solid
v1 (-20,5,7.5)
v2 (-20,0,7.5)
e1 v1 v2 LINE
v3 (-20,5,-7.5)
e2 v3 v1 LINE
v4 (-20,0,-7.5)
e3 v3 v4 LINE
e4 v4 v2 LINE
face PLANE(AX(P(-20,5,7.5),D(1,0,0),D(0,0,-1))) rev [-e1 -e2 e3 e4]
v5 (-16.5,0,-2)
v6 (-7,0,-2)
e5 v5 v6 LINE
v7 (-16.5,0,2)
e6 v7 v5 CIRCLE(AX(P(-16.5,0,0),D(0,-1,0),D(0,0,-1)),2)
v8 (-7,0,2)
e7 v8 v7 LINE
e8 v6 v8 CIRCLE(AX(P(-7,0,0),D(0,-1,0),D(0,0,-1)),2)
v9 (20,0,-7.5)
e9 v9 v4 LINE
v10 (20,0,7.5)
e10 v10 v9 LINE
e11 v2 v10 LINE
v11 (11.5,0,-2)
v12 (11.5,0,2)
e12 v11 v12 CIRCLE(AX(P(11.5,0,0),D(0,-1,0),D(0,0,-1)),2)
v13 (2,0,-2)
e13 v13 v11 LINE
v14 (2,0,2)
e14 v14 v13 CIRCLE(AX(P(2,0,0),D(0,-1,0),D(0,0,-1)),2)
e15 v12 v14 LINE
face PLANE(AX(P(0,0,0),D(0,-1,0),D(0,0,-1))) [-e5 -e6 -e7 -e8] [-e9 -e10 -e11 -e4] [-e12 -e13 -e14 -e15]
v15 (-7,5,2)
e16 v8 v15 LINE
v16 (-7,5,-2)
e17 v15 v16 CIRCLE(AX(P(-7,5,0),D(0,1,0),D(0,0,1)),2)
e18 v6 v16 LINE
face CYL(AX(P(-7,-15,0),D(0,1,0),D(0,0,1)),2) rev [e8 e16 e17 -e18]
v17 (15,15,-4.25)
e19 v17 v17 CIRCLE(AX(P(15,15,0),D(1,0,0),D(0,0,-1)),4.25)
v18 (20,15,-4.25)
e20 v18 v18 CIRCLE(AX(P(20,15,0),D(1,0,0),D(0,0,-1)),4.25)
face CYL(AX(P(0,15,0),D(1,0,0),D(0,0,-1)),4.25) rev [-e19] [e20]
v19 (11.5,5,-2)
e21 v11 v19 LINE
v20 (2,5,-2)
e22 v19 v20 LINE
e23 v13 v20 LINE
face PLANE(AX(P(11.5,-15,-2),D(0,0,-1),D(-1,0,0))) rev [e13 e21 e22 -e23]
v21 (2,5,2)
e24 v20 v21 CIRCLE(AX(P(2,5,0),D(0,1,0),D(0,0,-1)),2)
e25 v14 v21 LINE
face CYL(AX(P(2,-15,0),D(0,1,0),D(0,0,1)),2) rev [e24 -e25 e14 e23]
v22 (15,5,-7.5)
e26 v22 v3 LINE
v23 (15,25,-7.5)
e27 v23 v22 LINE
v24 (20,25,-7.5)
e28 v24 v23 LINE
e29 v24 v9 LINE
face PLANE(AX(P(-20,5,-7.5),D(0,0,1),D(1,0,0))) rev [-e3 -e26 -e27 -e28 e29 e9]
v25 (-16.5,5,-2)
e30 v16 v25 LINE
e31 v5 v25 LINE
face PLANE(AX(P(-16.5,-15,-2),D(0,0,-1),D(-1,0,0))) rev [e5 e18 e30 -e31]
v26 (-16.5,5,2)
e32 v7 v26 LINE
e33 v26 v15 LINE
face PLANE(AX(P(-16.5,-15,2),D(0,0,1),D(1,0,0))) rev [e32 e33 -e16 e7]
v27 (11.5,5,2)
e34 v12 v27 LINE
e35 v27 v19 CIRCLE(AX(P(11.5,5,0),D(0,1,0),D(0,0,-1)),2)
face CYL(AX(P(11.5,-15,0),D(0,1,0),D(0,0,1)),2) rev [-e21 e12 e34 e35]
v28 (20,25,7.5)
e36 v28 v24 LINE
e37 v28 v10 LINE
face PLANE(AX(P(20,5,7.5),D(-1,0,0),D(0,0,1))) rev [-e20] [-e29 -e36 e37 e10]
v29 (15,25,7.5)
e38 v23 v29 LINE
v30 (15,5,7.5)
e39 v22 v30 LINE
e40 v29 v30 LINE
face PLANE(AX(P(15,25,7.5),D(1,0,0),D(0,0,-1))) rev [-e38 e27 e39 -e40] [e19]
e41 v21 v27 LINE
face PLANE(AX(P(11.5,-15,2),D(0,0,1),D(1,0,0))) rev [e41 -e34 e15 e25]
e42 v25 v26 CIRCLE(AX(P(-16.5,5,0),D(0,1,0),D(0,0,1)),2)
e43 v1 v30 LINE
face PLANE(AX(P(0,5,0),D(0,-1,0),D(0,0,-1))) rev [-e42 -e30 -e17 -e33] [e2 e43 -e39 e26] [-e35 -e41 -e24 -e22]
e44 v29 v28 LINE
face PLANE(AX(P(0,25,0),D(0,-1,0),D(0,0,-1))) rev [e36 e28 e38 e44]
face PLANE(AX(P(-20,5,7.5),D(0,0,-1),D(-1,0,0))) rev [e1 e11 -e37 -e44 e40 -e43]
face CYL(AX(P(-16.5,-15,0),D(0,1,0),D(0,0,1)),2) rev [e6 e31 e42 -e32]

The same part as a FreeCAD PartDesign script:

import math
import FreeCAD as App
import Part
import Sketcher

doc = App.newDocument("Part")
body = doc.addObject("PartDesign::Body", "Body")

# Sketch on XZ plane
sketch1 = doc.addObject("Sketcher::SketchObject", "Sketch")
body.addObject(sketch1)
sketch1.AttachmentSupport = (doc.XZ_Plane, [""])
sketch1.MapMode = "FlatFace"
sketch1.addGeometry(Part.LineSegment(App.Vector(-20, -8, 0), App.Vector(-20, 8, 0)), False)
sketch1.addGeometry(Part.LineSegment(App.Vector(-20, 8, 0), App.Vector(20, 8, 0)), False)
sketch1.addGeometry(Part.LineSegment(App.Vector(20, 8, 0), App.Vector(20, -8, 0)), False)
sketch1.addGeometry(Part.LineSegment(App.Vector(20, -8, 0), App.Vector(-20, -8, 0)), False)
sketch1.addConstraint(Sketcher.Constraint("Coincident", 0, 2, 1, 1))
sketch1.addConstraint(Sketcher.Constraint("Coincident", 1, 2, 2, 1))
sketch1.addConstraint(Sketcher.Constraint("Coincident", 2, 2, 3, 1))
sketch1.addConstraint(Sketcher.Constraint("Coincident", 3, 2, 0, 1))
sketch1.addConstraint(Sketcher.Constraint("Vertical", 0))
sketch1.addConstraint(Sketcher.Constraint("Horizontal", 1))
sketch1.addConstraint(Sketcher.Constraint("Vertical", 2))
sketch1.addConstraint(Sketcher.Constraint("Horizontal", 3))
sketch1.addConstraint(Sketcher.Constraint("Symmetric", 0, 2, 2, 2, -1, 1))
sketch1.addConstraint(Sketcher.Constraint("DistanceX", 1, 1, 1, 2, 40.0))
sketch1.addConstraint(Sketcher.Constraint("DistanceY", 0, 1, 0, 2, 15.0))
pad1 = doc.addObject("PartDesign::Pad", "Pad")
body.addObject(pad1)
pad1.Profile = sketch1
pad1.Length = 5
pad1.Reversed = True

# Sketch on XZ plane
sketch2 = doc.addObject("Sketcher::SketchObject", "Sketch001")
body.addObject(sketch2)
sketch2.AttachmentSupport = (doc.XZ_Plane, [""])
sketch2.MapMode = "FlatFace"
sketch2.AttachmentOffset = App.Placement(App.Vector(0, 0, -5), App.Rotation())
sketch2.addGeometry(Part.LineSegment(App.Vector(15, -8, 0), App.Vector(15, 8, 0)), False)
sketch2.addGeometry(Part.LineSegment(App.Vector(15, 8, 0), App.Vector(20, 8, 0)), False)
sketch2.addGeometry(Part.LineSegment(App.Vector(20, 8, 0), App.Vector(20, -8, 0)), False)
sketch2.addGeometry(Part.LineSegment(App.Vector(20, -8, 0), App.Vector(15, -8, 0)), False)
sketch2.addConstraint(Sketcher.Constraint("Coincident", 0, 2, 1, 1))
sketch2.addConstraint(Sketcher.Constraint("Coincident", 1, 2, 2, 1))
sketch2.addConstraint(Sketcher.Constraint("Coincident", 2, 2, 3, 1))
sketch2.addConstraint(Sketcher.Constraint("Coincident", 3, 2, 0, 1))
sketch2.addConstraint(Sketcher.Constraint("Vertical", 0))
sketch2.addConstraint(Sketcher.Constraint("Horizontal", 1))
sketch2.addConstraint(Sketcher.Constraint("Vertical", 2))
sketch2.addConstraint(Sketcher.Constraint("Horizontal", 3))
sketch2.addConstraint(Sketcher.Constraint("DistanceX", 1, 1, 1, 2, 5.0))
sketch2.addConstraint(Sketcher.Constraint("DistanceY", 0, 1, 0, 2, 15.0))
sketch2.addConstraint(Sketcher.Constraint("DistanceX", -1, 1, 0, 2, 15.0))
sketch2.addConstraint(Sketcher.Constraint("DistanceY", -1, 1, 0, 2, 7.5))
pad2 = doc.addObject("PartDesign::Pad", "Pad001")
body.addObject(pad2)
pad2.Profile = sketch2
pad2.Length = 20
pad2.Reversed = True

# Sketch on YZ plane
sketch3 = doc.addObject("Sketcher::SketchObject", "Sketch002")
body.addObject(sketch3)
sketch3.AttachmentSupport = (doc.YZ_Plane, [""])
sketch3.MapMode = "FlatFace"
sketch3.AttachmentOffset = App.Placement(App.Vector(0, 0, 20), App.Rotation())
sketch3.addGeometry(Part.Circle(App.Vector(15, 0, 0), App.Vector(0, 0, 1), 4.2), False)
sketch3.addConstraint(Sketcher.Constraint("PointOnObject", 0, 3, -1))
sketch3.addConstraint(Sketcher.Constraint("Diameter", 0, 8.5))
sketch3.addConstraint(Sketcher.Constraint("DistanceX", -1, 1, 0, 3, 15.0))
pocket1 = doc.addObject("PartDesign::Pocket", "Pocket")
body.addObject(pocket1)
pocket1.Profile = sketch3
pocket1.Length = 20

# Sketch on XZ plane
sketch4 = doc.addObject("Sketcher::SketchObject", "Sketch003")
body.addObject(sketch4)
sketch4.AttachmentSupport = (doc.XZ_Plane, [""])
sketch4.MapMode = "FlatFace"
sketch4.AttachmentOffset = App.Placement(App.Vector(0, 0, -5), App.Rotation())
sketch4.addGeometry(Part.LineSegment(App.Vector(-7, -2, 0), App.Vector(-16.5, -2, 0)), False)
sketch4.addGeometry(Part.ArcOfCircle(Part.Circle(App.Vector(-16.5, 0, 0), App.Vector(0, 0, 1), 2), math.radians(90), math.radians(270)), False)
sketch4.addGeometry(Part.LineSegment(App.Vector(-16.5, 2, 0), App.Vector(-7, 2, 0)), False)
sketch4.addGeometry(Part.ArcOfCircle(Part.Circle(App.Vector(-7, 0, 0), App.Vector(0, 0, 1), 2), math.radians(-90), math.radians(90)), False)
sketch4.addGeometry(Part.LineSegment(App.Vector(2, 2, 0), App.Vector(11.5, 2, 0)), False)
sketch4.addGeometry(Part.ArcOfCircle(Part.Circle(App.Vector(11.5, 0, 0), App.Vector(0, 0, 1), 2), math.radians(-90), math.radians(90)), False)
sketch4.addGeometry(Part.LineSegment(App.Vector(11.5, -2, 0), App.Vector(2, -2, 0)), False)
sketch4.addGeometry(Part.ArcOfCircle(Part.Circle(App.Vector(2, 0, 0), App.Vector(0, 0, 1), 2), math.radians(90), math.radians(270)), False)
sketch4.addConstraint(Sketcher.Constraint("Tangent", 0, 2, 1, 2))
sketch4.addConstraint(Sketcher.Constraint("Tangent", 1, 1, 2, 1))
sketch4.addConstraint(Sketcher.Constraint("Tangent", 2, 2, 3, 2))
sketch4.addConstraint(Sketcher.Constraint("Tangent", 3, 1, 0, 1))
sketch4.addConstraint(Sketcher.Constraint("Tangent", 4, 2, 5, 2))
sketch4.addConstraint(Sketcher.Constraint("Tangent", 5, 1, 6, 1))
sketch4.addConstraint(Sketcher.Constraint("Tangent", 6, 2, 7, 2))
sketch4.addConstraint(Sketcher.Constraint("Tangent", 7, 1, 4, 1))
sketch4.addConstraint(Sketcher.Constraint("Horizontal", 0))
sketch4.addConstraint(Sketcher.Constraint("Horizontal", 2))
sketch4.addConstraint(Sketcher.Constraint("Horizontal", 4))
sketch4.addConstraint(Sketcher.Constraint("Horizontal", 6))
sketch4.addConstraint(Sketcher.Constraint("Equal", 3, 5))
sketch4.addConstraint(Sketcher.Constraint("PointOnObject", 1, 3, -1))
sketch4.addConstraint(Sketcher.Constraint("PointOnObject", 5, 3, -1))
sketch4.addConstraint(Sketcher.Constraint("Equal", 2, 4))
sketch4.addConstraint(Sketcher.Constraint("Radius", 1, 2.0))
sketch4.addConstraint(Sketcher.Constraint("DistanceX", 0, 2, 0, 1, 9.5))
sketch4.addConstraint(Sketcher.Constraint("DistanceX", 3, 3, -1, 1, 7.0))
sketch4.addConstraint(Sketcher.Constraint("DistanceX", -1, 1, 7, 3, 2.0))
pocket2 = doc.addObject("PartDesign::Pocket", "Pocket001")
body.addObject(pocket2)
pocket2.Profile = sketch4
pocket2.Length = 20
pocket2.Reversed = True

doc.recompute()
